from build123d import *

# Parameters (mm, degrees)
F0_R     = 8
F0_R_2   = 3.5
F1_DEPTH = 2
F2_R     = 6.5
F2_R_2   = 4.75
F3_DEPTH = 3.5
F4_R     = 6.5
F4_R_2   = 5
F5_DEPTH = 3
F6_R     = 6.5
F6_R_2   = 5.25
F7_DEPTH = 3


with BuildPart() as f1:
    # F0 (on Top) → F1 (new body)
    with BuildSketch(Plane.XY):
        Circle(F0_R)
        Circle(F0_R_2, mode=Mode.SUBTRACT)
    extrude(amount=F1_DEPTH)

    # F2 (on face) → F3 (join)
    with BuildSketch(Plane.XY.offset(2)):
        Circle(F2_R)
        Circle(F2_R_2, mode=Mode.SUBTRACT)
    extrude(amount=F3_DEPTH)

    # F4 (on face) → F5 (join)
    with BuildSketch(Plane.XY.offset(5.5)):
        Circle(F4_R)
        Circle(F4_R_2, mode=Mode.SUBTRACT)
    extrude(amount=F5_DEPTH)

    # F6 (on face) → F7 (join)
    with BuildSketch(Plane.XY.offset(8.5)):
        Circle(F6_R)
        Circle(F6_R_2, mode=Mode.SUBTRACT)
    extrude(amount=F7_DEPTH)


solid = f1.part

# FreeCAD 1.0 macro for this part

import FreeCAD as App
import Part
import Sketcher

V = App.Vector

doc = App.newDocument("Part")
body = doc.addObject("PartDesign::Body", "Body")

sketch1 = body.newObject("Sketcher::SketchObject", "Sketch")
sketch1.AttachmentSupport = (doc.getObject("XY_Plane"), [""])
sketch1.MapMode = "FlatFace"
sketch1.addGeometry([
    Part.Circle(V(0, 0, 0), V(0, 0, 1), 8),
    Part.Circle(V(0, 0, 0), V(0, 0, 1), 3.5),
], False)
sketch1.addConstraint([
    Sketcher.Constraint("Coincident", 0, 3, -1, 1),
    Sketcher.Constraint("Coincident", 1, 3, -1, 1),
    Sketcher.Constraint("Diameter", 0, 16.0),
    Sketcher.Constraint("Diameter", 1, 7.0),
])
pad1 = body.newObject("PartDesign::Pad", "Pad")
pad1.Profile = sketch1
pad1.Length = 2

sketch2 = body.newObject("Sketcher::SketchObject", "Sketch001")
sketch2.AttachmentSupport = (doc.getObject("XY_Plane"), [""])
sketch2.MapMode = "FlatFace"
sketch2.AttachmentOffset = App.Placement(V(0, 0, 2), App.Rotation())
sketch2.addGeometry([
    Part.Circle(V(0, 0, 0), V(0, 0, 1), 6.5),
    Part.Circle(V(0, 0, 0), V(0, 0, 1), 4.8),
], False)
sketch2.addConstraint([
    Sketcher.Constraint("Coincident", 0, 3, -1, 1),
    Sketcher.Constraint("Coincident", 1, 3, -1, 1),
    Sketcher.Constraint("Diameter", 0, 13.0),
    Sketcher.Constraint("Diameter", 1, 9.5),
])
pad2 = body.newObject("PartDesign::Pad", "Pad001")
pad2.Profile = sketch2
pad2.Length = 3.5

sketch3 = body.newObject("Sketcher::SketchObject", "Sketch002")
sketch3.AttachmentSupport = (doc.getObject("XY_Plane"), [""])
sketch3.MapMode = "FlatFace"
sketch3.AttachmentOffset = App.Placement(V(0, 0, 5.5), App.Rotation())
sketch3.addGeometry([
    Part.Circle(V(0, 0, 0), V(0, 0, 1), 6),
    Part.Circle(V(0, 0, 0), V(0, 0, 1), 5),
], False)
sketch3.addConstraint([
    Sketcher.Constraint("Coincident", 0, 3, -1, 1),
    Sketcher.Constraint("Coincident", 1, 3, -1, 1),
    Sketcher.Constraint("Diameter", 0, 13.0),
    Sketcher.Constraint("Diameter", 1, 10.0),
])
pad3 = body.newObject("PartDesign::Pad", "Pad002")
pad3.Profile = sketch3
pad3.Length = 3

sketch4 = body.newObject("Sketcher::SketchObject", "Sketch003")
sketch4.AttachmentSupport = (doc.getObject("XY_Plane"), [""])
sketch4.MapMode = "FlatFace"
sketch4.AttachmentOffset = App.Placement(V(0, 0, 8.5), App.Rotation())
sketch4.addGeometry([
    Part.Circle(V(0, 0, 0), V(0, 0, 1), 6),
    Part.Circle(V(0, 0, 0), V(0, 0, 1), 5),
], False)
sketch4.addConstraint([
    Sketcher.Constraint("Coincident", 0, 3, -1, 1),
    Sketcher.Constraint("Coincident", 1, 3, -1, 1),
    Sketcher.Constraint("Diameter", 0, 13.0),
    Sketcher.Constraint("Diameter", 1, 10.5),
])
pad4 = body.newObject("PartDesign::Pad", "Pad003")
pad4.Profile = sketch4
pad4.Length = 3

doc.recompute()
